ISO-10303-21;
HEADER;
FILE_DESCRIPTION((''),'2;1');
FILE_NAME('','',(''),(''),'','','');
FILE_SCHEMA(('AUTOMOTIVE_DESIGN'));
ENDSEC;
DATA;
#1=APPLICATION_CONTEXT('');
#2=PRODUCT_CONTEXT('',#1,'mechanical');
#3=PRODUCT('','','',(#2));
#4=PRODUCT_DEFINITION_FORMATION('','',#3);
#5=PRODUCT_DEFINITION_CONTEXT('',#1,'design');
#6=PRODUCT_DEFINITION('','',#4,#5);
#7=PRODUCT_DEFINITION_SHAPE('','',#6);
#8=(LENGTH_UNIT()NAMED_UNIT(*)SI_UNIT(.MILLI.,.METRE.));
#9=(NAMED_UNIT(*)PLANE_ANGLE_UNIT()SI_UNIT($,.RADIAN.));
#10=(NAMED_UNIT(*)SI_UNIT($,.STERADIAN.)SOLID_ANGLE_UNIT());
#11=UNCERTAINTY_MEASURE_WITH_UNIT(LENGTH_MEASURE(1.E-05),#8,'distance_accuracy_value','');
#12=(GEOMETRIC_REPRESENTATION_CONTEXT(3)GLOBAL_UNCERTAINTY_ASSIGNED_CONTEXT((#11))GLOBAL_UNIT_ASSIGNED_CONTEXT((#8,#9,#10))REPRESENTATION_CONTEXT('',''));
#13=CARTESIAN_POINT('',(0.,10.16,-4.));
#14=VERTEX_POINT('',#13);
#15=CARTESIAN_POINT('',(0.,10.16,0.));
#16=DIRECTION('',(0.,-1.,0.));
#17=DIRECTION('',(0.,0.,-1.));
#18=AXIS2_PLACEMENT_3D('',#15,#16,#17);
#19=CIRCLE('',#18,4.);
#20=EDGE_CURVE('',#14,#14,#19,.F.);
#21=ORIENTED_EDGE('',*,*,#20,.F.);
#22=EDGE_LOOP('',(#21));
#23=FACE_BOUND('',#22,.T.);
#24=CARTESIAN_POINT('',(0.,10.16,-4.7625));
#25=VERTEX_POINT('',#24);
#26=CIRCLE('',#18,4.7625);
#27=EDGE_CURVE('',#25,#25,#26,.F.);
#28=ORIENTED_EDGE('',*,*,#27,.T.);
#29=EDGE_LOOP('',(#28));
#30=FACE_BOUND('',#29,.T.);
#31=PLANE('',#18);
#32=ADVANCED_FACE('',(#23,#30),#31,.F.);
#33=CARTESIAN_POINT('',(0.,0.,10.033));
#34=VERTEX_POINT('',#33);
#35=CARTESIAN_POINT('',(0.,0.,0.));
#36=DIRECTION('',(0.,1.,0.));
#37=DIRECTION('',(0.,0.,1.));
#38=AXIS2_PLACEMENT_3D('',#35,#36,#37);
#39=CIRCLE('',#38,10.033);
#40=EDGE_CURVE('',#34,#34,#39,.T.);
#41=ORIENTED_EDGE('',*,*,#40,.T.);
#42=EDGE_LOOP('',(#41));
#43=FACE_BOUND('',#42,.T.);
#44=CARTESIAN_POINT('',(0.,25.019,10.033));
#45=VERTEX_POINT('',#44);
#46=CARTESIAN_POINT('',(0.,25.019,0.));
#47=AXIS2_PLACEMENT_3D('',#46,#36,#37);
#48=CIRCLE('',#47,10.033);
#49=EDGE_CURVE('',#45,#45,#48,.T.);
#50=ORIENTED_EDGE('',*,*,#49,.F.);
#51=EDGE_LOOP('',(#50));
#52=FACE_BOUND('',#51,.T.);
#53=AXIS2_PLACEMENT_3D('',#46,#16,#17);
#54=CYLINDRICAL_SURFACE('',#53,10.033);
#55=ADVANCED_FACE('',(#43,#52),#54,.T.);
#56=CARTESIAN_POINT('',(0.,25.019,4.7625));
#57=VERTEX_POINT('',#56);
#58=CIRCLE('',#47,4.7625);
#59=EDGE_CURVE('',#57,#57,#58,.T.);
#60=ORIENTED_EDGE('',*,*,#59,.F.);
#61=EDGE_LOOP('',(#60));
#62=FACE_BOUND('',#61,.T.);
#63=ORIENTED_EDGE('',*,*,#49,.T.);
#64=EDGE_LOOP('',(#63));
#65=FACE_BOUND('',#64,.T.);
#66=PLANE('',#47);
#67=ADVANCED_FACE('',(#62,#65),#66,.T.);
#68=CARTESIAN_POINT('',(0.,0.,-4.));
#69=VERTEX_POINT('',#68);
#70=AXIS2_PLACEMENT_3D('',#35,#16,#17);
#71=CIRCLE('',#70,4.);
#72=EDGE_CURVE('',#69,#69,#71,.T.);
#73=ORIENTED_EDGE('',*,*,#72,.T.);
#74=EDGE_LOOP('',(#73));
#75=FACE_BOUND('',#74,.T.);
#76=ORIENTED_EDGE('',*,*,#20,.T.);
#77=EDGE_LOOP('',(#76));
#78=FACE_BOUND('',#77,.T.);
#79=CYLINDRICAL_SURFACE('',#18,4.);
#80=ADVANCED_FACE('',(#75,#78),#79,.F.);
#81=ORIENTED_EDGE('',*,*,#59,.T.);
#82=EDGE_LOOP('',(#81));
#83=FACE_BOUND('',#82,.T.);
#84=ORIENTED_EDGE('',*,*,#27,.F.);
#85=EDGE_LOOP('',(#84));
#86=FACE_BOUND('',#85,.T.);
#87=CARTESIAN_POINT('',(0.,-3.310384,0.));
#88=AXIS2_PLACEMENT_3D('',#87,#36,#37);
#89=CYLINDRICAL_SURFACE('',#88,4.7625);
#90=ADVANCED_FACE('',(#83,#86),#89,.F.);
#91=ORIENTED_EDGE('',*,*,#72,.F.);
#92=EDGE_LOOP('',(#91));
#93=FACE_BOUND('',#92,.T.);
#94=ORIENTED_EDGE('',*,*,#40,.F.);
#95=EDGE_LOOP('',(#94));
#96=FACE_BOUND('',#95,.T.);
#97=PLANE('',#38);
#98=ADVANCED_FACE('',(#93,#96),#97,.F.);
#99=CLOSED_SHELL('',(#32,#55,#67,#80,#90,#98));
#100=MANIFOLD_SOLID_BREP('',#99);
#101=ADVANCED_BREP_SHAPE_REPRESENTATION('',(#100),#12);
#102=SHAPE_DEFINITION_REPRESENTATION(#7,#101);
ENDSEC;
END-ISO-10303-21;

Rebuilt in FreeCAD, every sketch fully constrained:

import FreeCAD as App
import Part
import Sketcher

V = App.Vector
Q = App.Units.Quantity

doc = App.newDocument("Part")
body = doc.addObject("PartDesign::Body", "Body")

sketch1 = body.newObject("Sketcher::SketchObject", "Sketch")
sketch1.AttachmentSupport = (doc.getObject("XZ_Plane"), [""])
sketch1.MapMode = "FlatFace"
sketch1.addGeometry(Part.Circle(V(0, 0, 0), V(0, 0, 1), 10.033), False)
sketch1.addConstraint([
    Sketcher.Constraint("Coincident", 0, 3, -1, 1),
    Sketcher.Constraint("Diameter", 0, Q("0.79 in")),
])
pad1 = body.newObject("PartDesign::Pad", "Pad")
pad1.Profile = sketch1
pad1.Length = Q("0.985 in")
pad1.Reversed = True

sketch2 = body.newObject("Sketcher::SketchObject", "Sketch001")
sketch2.AttachmentSupport = (doc.getObject("XZ_Plane"), [""])
sketch2.MapMode = "FlatFace"
sketch2.addGeometry(Part.Circle(V(0, 0, 0), V(0, 0, 1), 4), False)
sketch2.addConstraint([
    Sketcher.Constraint("Coincident", 0, 3, -1, 1),
    Sketcher.Constraint("Diameter", 0, Q("8 mm")),
])
pocket1 = body.newObject("PartDesign::Pocket", "Pocket")
pocket1.Profile = sketch2
pocket1.Length = Q("0.4 in")

sketch3 = body.newObject("Sketcher::SketchObject", "Sketch002")
sketch3.AttachmentSupport = (doc.getObject("XZ_Plane"), [""])
sketch3.MapMode = "FlatFace"
sketch3.AttachmentOffset = App.Placement(V(0, 0, -0.985 * 25.4), App.Rotation())
sketch3.addGeometry(Part.Circle(V(0, 0, 0), V(0, 0, 1), 4.7625), False)
sketch3.addConstraint([
    Sketcher.Constraint("Coincident", 0, 3, -1, 1),
    Sketcher.Constraint("Diameter", 0, Q("0.375 in")),
])
pocket2 = body.newObject("PartDesign::Pocket", "Pocket001")
pocket2.Profile = sketch3
pocket2.Length = Q("0.585 in")
pocket2.Reversed = True

doc.recompute()
